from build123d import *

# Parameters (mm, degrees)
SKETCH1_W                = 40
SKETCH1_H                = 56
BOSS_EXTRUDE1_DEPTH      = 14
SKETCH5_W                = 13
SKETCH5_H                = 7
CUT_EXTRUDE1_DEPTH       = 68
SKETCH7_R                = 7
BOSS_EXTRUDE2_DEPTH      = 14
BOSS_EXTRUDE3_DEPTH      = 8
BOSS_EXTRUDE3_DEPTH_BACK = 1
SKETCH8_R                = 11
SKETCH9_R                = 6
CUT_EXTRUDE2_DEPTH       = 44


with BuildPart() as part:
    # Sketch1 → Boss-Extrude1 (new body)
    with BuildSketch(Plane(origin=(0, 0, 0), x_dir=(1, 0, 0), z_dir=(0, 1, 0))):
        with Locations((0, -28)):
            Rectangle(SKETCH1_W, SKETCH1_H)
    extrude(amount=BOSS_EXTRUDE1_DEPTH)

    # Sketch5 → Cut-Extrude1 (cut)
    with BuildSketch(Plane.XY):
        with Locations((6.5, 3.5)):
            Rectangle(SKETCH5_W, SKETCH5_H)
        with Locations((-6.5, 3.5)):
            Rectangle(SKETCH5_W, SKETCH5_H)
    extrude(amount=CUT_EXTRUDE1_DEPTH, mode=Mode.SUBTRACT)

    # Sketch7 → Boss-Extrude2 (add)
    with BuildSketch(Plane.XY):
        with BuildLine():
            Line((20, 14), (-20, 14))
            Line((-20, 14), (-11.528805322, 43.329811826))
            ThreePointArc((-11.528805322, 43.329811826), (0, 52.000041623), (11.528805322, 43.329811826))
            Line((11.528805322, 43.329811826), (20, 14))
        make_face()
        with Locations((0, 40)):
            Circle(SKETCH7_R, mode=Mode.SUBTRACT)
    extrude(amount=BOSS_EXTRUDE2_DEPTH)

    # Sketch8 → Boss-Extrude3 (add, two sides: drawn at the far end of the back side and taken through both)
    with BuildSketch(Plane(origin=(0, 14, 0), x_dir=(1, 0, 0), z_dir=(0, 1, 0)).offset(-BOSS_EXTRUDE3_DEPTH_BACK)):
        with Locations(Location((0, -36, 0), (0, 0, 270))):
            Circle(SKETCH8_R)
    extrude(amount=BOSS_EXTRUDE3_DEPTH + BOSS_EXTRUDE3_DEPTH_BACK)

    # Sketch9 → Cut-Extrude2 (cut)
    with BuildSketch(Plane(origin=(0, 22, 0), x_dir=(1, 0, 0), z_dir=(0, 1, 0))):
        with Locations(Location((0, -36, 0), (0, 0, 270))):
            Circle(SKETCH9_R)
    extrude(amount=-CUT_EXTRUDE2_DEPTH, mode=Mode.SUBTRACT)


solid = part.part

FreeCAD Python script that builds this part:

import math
import FreeCAD as App
import Part
import Sketcher
Q = App.Units.Quantity

doc = App.newDocument("Part")
params = doc.addObject("Spreadsheet::Sheet", "Params")
for row, (alias, value) in enumerate([
    ("sketch1_width", "40 mm"),
    ("sketch1_height", "56 mm"),
    ("pad1_length", "14 mm"),
    ("sketch2_width", "26 mm"),
    ("sketch2_height", "7 mm"),
    ("pocket1_length", "68 mm"),
    ("sketch3_diameter", "14 mm"),
    ("sketch3_width", "40 mm"),
    ("pad2_length", "14 mm"),
    ("sketch4_diameter", "22 mm"),
    ("pad3_length", "8 mm"),
    ("pad3_length2", "1 mm"),
    ("sketch5_diameter", "12 mm"),
    ("pocket2_length", "44 mm"),
], start=1):
    params.set(f"A{row}", alias)
    params.set(f"B{row}", "=" + value)
    params.setAlias(f"B{row}", alias)

body = doc.addObject("PartDesign::Body", "Body")

sketch1 = doc.addObject("Sketcher::SketchObject", "Sketch")
body.addObject(sketch1)
sketch1.AttachmentSupport = (doc.XZ_Plane, [""])
sketch1.MapMode = "FlatFace"
sketch1.addGeometry([
    Part.LineSegment(App.Vector(-20, 0, 0), App.Vector(-20, 56, 0)),
    Part.LineSegment(App.Vector(-20, 56, 0), App.Vector(20, 56, 0)),
    Part.LineSegment(App.Vector(20, 56, 0), App.Vector(20, 0, 0)),
    Part.LineSegment(App.Vector(20, 0, 0), App.Vector(-20, 0, 0)),
], False)
sketch1.addConstraint([
    Sketcher.Constraint("Coincident", 0, 2, 1, 1),
    Sketcher.Constraint("Coincident", 1, 2, 2, 1),
    Sketcher.Constraint("Coincident", 2, 2, 3, 1),
    Sketcher.Constraint("Coincident", 3, 2, 0, 1),
    Sketcher.Constraint("Vertical", 0),
    Sketcher.Constraint("Horizontal", 1),
    Sketcher.Constraint("Vertical", 2),
    Sketcher.Constraint("Horizontal", 3),
    Sketcher.Constraint("Symmetric", 2, 2, 3, 2, -1, 1),
    Sketcher.Constraint("DistanceX", 1, 1, 1, 2, Q("40 mm")),
    Sketcher.Constraint("DistanceY", 0, 1, 0, 2, Q("56 mm")),
])
sketch1.setExpression("Constraints[9]", "Params.sketch1_width")
sketch1.setExpression("Constraints[10]", "Params.sketch1_height")
pad1 = doc.addObject("PartDesign::Pad", "Pad")
body.addObject(pad1)
pad1.Profile = sketch1
pad1.setExpression("Length", "Params.pad1_length")
pad1.Reversed = True

sketch2 = doc.addObject("Sketcher::SketchObject", "Sketch001")
body.addObject(sketch2)
sketch2.AttachmentSupport = (doc.XY_Plane, [""])
sketch2.MapMode = "FlatFace"
sketch2.addGeometry([
    Part.LineSegment(App.Vector(13, 0, 0), App.Vector(13, 7, 0)),
    Part.LineSegment(App.Vector(13, 7, 0), App.Vector(-13, 7, 0)),
    Part.LineSegment(App.Vector(-13, 7, 0), App.Vector(-13, 0, 0)),
    Part.LineSegment(App.Vector(-13, 0, 0), App.Vector(13, 0, 0)),
], False)
sketch2.addConstraint([
    Sketcher.Constraint("Coincident", 0, 2, 1, 1),
    Sketcher.Constraint("Coincident", 1, 2, 2, 1),
    Sketcher.Constraint("Coincident", 2, 2, 3, 1),
    Sketcher.Constraint("Coincident", 3, 2, 0, 1),
    Sketcher.Constraint("Vertical", 0),
    Sketcher.Constraint("Horizontal", 1),
    Sketcher.Constraint("Vertical", 2),
    Sketcher.Constraint("Horizontal", 3),
    Sketcher.Constraint("Symmetric", 2, 2, 3, 2, -1, 1),
    Sketcher.Constraint("DistanceX", 1, 2, 1, 1, Q("26 mm")),
    Sketcher.Constraint("DistanceY", 0, 1, 0, 2, Q("7 mm")),
])
sketch2.setExpression("Constraints[9]", "Params.sketch2_width")
sketch2.setExpression("Constraints[10]", "Params.sketch2_height")
pocket1 = doc.addObject("PartDesign::Pocket", "Pocket")
body.addObject(pocket1)
pocket1.Profile = sketch2
pocket1.setExpression("Length", "Params.pocket1_length")
pocket1.Reversed = True

sketch3 = doc.addObject("Sketcher::SketchObject", "Sketch002")
body.addObject(sketch3)
sketch3.AttachmentSupport = (doc.XY_Plane, [""])
sketch3.MapMode = "FlatFace"
sketch3.addGeometry([
    Part.LineSegment(App.Vector(-20, 14, 0), App.Vector(20, 14, 0)),
    Part.LineSegment(App.Vector(20, 14, 0), App.Vector(11.528805, 43.329812, 0)),
    Part.ArcOfCircle(Part.Circle(App.Vector(0, 40, 0), App.Vector(0, 0, 1), 12.000042), math.radians(16.110061), math.radians(163.889939)),
    Part.LineSegment(App.Vector(-11.528805, 43.329812, 0), App.Vector(-20, 14, 0)),
    Part.Circle(App.Vector(0, 40, 0), App.Vector(0, 0, 1), 7),
], False)
sketch3.addConstraint([
    Sketcher.Constraint("Coincident", 0, 2, 1, 1),
    Sketcher.Constraint("Tangent", 1, 2, 2, 1),
    Sketcher.Constraint("Tangent", 2, 2, 3, 1),
    Sketcher.Constraint("Coincident", 3, 2, 0, 1),
    Sketcher.Constraint("Horizontal", 0),
    Sketcher.Constraint("Coincident", 4, 3, 2, 3),
    Sketcher.Constraint("Symmetric", 1, 2, 2, 2, -2),
    Sketcher.Constraint("Diameter", 4, Q("14 mm")),
    Sketcher.Constraint("DistanceX", 0, 1, 0, 2, Q("40 mm")),
    Sketcher.Constraint("DistanceY", -1, 1, 2, 3, Q("40 mm")),
    Sketcher.Constraint("DistanceY", -1, 1, 0, 2, Q("14 mm")),
    Sketcher.Constraint("Radius", 2, Q("12.000042 mm")),
])
sketch3.setExpression("Constraints[7]", "Params.sketch3_diameter")
sketch3.setExpression("Constraints[8]", "Params.sketch3_width")
pad2 = doc.addObject("PartDesign::Pad", "Pad001")
body.addObject(pad2)
pad2.Profile = sketch3
pad2.setExpression("Length", "Params.pad2_length")

sketch4 = doc.addObject("Sketcher::SketchObject", "Sketch003")
body.addObject(sketch4)
sketch4.AttachmentSupport = (doc.XZ_Plane, [""])
sketch4.MapMode = "FlatFace"
sketch4.AttachmentOffset = App.Placement(App.Vector(0, 0, -14), App.Rotation())
sketch4.addGeometry(Part.Circle(App.Vector(0, 36, 0), App.Vector(0, 0, 1), 11), False)
sketch4.addConstraint([
    Sketcher.Constraint("PointOnObject", 0, 3, -2),
    Sketcher.Constraint("Diameter", 0, Q("22 mm")),
    Sketcher.Constraint("DistanceY", -1, 1, 0, 3, Q("36 mm")),
])
sketch4.setExpression("Constraints[1]", "Params.sketch4_diameter")
pad3 = doc.addObject("PartDesign::Pad", "Pad002")
body.addObject(pad3)
pad3.Profile = sketch4
pad3.Type = "TwoLengths"
pad3.setExpression("Length", "Params.pad3_length")
pad3.setExpression("Length2", "Params.pad3_length2")
pad3.Reversed = True

sketch5 = doc.addObject("Sketcher::SketchObject", "Sketch004")
body.addObject(sketch5)
sketch5.AttachmentSupport = (doc.XZ_Plane, [""])
sketch5.MapMode = "FlatFace"
sketch5.AttachmentOffset = App.Placement(App.Vector(0, 0, -22), App.Rotation())
sketch5.addGeometry(Part.Circle(App.Vector(0, 36, 0), App.Vector(0, 0, 1), 6), False)
sketch5.addConstraint([
    Sketcher.Constraint("PointOnObject", 0, 3, -2),
    Sketcher.Constraint("Diameter", 0, Q("12 mm")),
    Sketcher.Constraint("DistanceY", -1, 1, 0, 3, Q("36 mm")),
])
sketch5.setExpression("Constraints[1]", "Params.sketch5_diameter")
pocket2 = doc.addObject("PartDesign::Pocket", "Pocket001")
body.addObject(pocket2)
pocket2.Profile = sketch5
pocket2.setExpression("Length", "Params.pocket2_length")
pocket2.Reversed = True

doc.recompute()
